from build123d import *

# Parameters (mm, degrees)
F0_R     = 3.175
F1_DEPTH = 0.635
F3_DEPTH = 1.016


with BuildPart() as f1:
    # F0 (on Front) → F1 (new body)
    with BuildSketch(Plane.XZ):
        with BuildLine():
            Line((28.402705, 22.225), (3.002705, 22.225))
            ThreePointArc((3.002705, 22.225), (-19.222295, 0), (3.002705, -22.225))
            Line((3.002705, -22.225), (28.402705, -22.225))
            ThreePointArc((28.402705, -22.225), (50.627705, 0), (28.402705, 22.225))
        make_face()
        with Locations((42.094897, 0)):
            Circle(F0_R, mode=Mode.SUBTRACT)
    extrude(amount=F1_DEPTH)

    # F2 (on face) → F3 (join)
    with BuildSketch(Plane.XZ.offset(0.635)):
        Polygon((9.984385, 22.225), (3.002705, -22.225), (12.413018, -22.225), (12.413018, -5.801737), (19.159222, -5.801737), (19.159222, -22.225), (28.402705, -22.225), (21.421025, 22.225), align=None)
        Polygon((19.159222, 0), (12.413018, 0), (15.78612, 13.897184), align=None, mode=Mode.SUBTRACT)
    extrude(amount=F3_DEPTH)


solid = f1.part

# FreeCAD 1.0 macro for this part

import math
import FreeCAD as App
import Part
import Sketcher

V = App.Vector
Q = App.Units.Quantity

doc = App.newDocument("Part")
params = doc.addObject("Spreadsheet::Sheet", "Params")
for row, (alias, value) in enumerate([
    ("sketch1_diameter", "0.25 in"),
    ("sketch1_width", "1 in"),
    ("sketch1_radius", "0.875 in"),
    ("pad1_length", "0.025 in"),
    ("pad2_length", "0.04 in"),
], start=1):
    params.set(f"A{row}", alias)
    params.set(f"B{row}", "=" + value)
    params.setAlias(f"B{row}", alias)

body = doc.addObject("PartDesign::Body", "Body")

# Sketch on XZ plane
sketch1 = body.newObject("Sketcher::SketchObject", "Sketch")
sketch1.AttachmentSupport = (doc.getObject("XZ_Plane"), [""])
sketch1.MapMode = "FlatFace"
sketch1.addGeometry([
    Part.LineSegment(V(28.402705, 22.225, 0), V(3.002705, 22.225, 0)),  # 0
    Part.ArcOfCircle(Part.Circle(V(3.002705, 0, 0), V(0, 0, 1), 22.225), math.radians(90), math.radians(270)),  # 1
    Part.LineSegment(V(3.002705, -22.225, 0), V(28.402705, -22.225, 0)),  # 2
    Part.ArcOfCircle(Part.Circle(V(28.402705, 0, 0), V(0, 0, 1), 22.225), math.radians(-90), math.radians(90)),  # 3
    Part.Circle(V(42.094897, 0, 0), V(0, 0, 1), 3.175),  # 4
], False)
sketch1.addConstraint([
    Sketcher.Constraint("Tangent", 0, 2, 1, 1),
    Sketcher.Constraint("Tangent", 1, 2, 2, 1),
    Sketcher.Constraint("Tangent", 2, 2, 3, 1),
    Sketcher.Constraint("Tangent", 3, 2, 0, 1),
    Sketcher.Constraint("Horizontal", 0),
    Sketcher.Constraint("Horizontal", 2),
    Sketcher.Constraint("PointOnObject", 1, 3, -1),
    Sketcher.Constraint("PointOnObject", 4, 3, -1),
    Sketcher.Constraint("Diameter", 4, Q("0.25 in")),
    Sketcher.Constraint("DistanceX", 0, 2, 0, 1, Q("1 in")),
    Sketcher.Constraint("Radius", 1, Q("0.875 in")),
    Sketcher.Constraint("DistanceX", -1, 1, 1, 3, Q("3.002705 mm")),
    Sketcher.Constraint("DistanceX", -1, 1, 4, 3, Q("42.094897 mm")),
])
sketch1.setExpression("Constraints[8]", "Params.sketch1_diameter")
sketch1.setExpression("Constraints[9]", "Params.sketch1_width")
sketch1.setExpression("Constraints[10]", "Params.sketch1_radius")
pad1 = body.newObject("PartDesign::Pad", "Pad")
pad1.Profile = sketch1
pad1.setExpression("Length", "Params.pad1_length")

# Sketch on XZ plane
sketch2 = body.newObject("Sketcher::SketchObject", "Sketch001")
sketch2.AttachmentSupport = (doc.getObject("XZ_Plane"), [""])
sketch2.MapMode = "FlatFace"
sketch2.AttachmentOffset = App.Placement(V(0, 0, 0.025 * 25.4), App.Rotation())
sketch2.addGeometry([
    Part.LineSegment(V(9.984385, 22.225, 0), V(3.002705, -22.225, 0)),  # 0
    Part.LineSegment(V(3.002705, -22.225, 0), V(12.413018, -22.225, 0)),  # 1
    Part.LineSegment(V(12.413018, -22.225, 0), V(12.413018, -5.801737, 0)),  # 2
    Part.LineSegment(V(12.413018, -5.801737, 0), V(19.159222, -5.801737, 0)),  # 3
    Part.LineSegment(V(19.159222, -5.801737, 0), V(19.159222, -22.225, 0)),  # 4
    Part.LineSegment(V(19.159222, -22.225, 0), V(28.402705, -22.225, 0)),  # 5
    Part.LineSegment(V(28.402705, -22.225, 0), V(21.421025, 22.225, 0)),  # 6
    Part.LineSegment(V(21.421025, 22.225, 0), V(9.984385, 22.225, 0)),  # 7
    Part.LineSegment(V(15.78612, 13.897184, 0), V(19.159222, 0, 0)),  # 8
    Part.LineSegment(V(19.159222, 0, 0), V(12.413018, 0, 0)),  # 9
    Part.LineSegment(V(12.413018, 0, 0), V(15.78612, 13.897184, 0)),  # 10
], False)
sketch2.addConstraint([
    Sketcher.Constraint("Coincident", 0, 2, 1, 1),
    Sketcher.Constraint("Coincident", 1, 2, 2, 1),
    Sketcher.Constraint("Coincident", 2, 2, 3, 1),
    Sketcher.Constraint("Coincident", 3, 2, 4, 1),
    Sketcher.Constraint("Coincident", 4, 2, 5, 1),
    Sketcher.Constraint("Coincident", 5, 2, 6, 1),
    Sketcher.Constraint("Coincident", 6, 2, 7, 1),
    Sketcher.Constraint("Coincident", 7, 2, 0, 1),
    Sketcher.Constraint("Coincident", 8, 2, 9, 1),
    Sketcher.Constraint("Coincident", 9, 2, 10, 1),
    Sketcher.Constraint("Coincident", 10, 2, 8, 1),
    Sketcher.Constraint("Horizontal", 1),
    Sketcher.Constraint("Vertical", 2),
    Sketcher.Constraint("Horizontal", 3),
    Sketcher.Constraint("Vertical", 4),
    Sketcher.Constraint("Horizontal", 5),
    Sketcher.Constraint("Horizontal", 7),
    Sketcher.Constraint("Horizontal", 9),
    Sketcher.Constraint("PointOnObject", 8, 2, -1),
    Sketcher.Constraint("Horizontal", 1, 2, 4, 2),
    Sketcher.Constraint("Vertical", 4, 2, 8, 2),
    Sketcher.Constraint("Vertical", 2, 2, 9, 2),
    Sketcher.Constraint("Equal", 0, 6),
    Sketcher.Constraint("Equal", 8, 10),
    Sketcher.Constraint("DistanceX", 0, 2, 5, 2, Q("1 in")),
    Sketcher.Constraint("DistanceY", 4, 2, 6, 2, Q("1.75 in")),
    Sketcher.Constraint("DistanceY", 0, 2, -1, 1, Q("0.875 in")),
    Sketcher.Constraint("DistanceX", -1, 1, 3, 2, Q("0.7543001 in")),
    Sketcher.Constraint("DistanceX", 7, 2, 7, 1, Q("11.43664 mm")),
    Sketcher.Constraint("DistanceX", 10, 2, 8, 2, Q("3.373102 mm")),
    Sketcher.Constraint("DistanceX", 1, 1, 1, 2, Q("9.410313 mm")),
    Sketcher.Constraint("DistanceY", 2, 1, 2, 2, Q("16.423263 mm")),
    Sketcher.Constraint("DistanceY", 2, 2, 10, 2, Q("19.698921 mm")),
])
pad2 = body.newObject("PartDesign::Pad", "Pad001")
pad2.Profile = sketch2
pad2.setExpression("Length", "Params.pad2_length")

doc.recompute()
